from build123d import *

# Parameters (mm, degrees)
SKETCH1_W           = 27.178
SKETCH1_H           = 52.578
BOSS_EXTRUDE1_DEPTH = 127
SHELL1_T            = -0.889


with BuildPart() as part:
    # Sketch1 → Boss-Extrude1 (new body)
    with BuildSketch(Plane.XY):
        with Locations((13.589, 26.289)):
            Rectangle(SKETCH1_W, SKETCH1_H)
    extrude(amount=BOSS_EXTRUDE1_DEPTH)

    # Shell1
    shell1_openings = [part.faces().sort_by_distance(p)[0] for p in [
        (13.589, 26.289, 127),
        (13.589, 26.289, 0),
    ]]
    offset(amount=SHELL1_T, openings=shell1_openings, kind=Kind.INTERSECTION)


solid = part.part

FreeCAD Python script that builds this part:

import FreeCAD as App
import Part
import Sketcher
Q = App.Units.Quantity


def faces_at(feature, points):
    """Names of the faces that lie closest to the given points."""
    faces = feature.Shape.Faces
    near = lambda p: min(range(len(faces)), key=lambda i: faces[i].distToShape(Part.Vertex(*p))[0])
    return sorted({f"Face{near(p) + 1}" for p in points})

doc = App.newDocument("Part")
body = doc.addObject("PartDesign::Body", "Body")

# Sketch on XY plane
sketch1 = doc.addObject("Sketcher::SketchObject", "Sketch")
body.addObject(sketch1)
sketch1.AttachmentSupport = (doc.XY_Plane, [""])
sketch1.MapMode = "FlatFace"
sketch1.addGeometry([
    Part.LineSegment(App.Vector(0, 52.578, 0), App.Vector(0, 0, 0)),
    Part.LineSegment(App.Vector(0, 0, 0), App.Vector(27.178, 0, 0)),
    Part.LineSegment(App.Vector(27.178, 0, 0), App.Vector(27.178, 52.578, 0)),
    Part.LineSegment(App.Vector(27.178, 52.578, 0), App.Vector(0, 52.578, 0)),
], False)
sketch1.addConstraint([
    Sketcher.Constraint("Coincident", 0, 2, 1, 1),
    Sketcher.Constraint("Coincident", 1, 2, 2, 1),
    Sketcher.Constraint("Coincident", 2, 2, 3, 1),
    Sketcher.Constraint("Coincident", 3, 2, 0, 1),
    Sketcher.Constraint("Vertical", 0),
    Sketcher.Constraint("Horizontal", 1),
    Sketcher.Constraint("Vertical", 2),
    Sketcher.Constraint("Horizontal", 3),
    Sketcher.Constraint("Coincident", 0, 2, -1, 1),
    Sketcher.Constraint("DistanceX", 1, 1, 1, 2, Q("1.07 in")),
    Sketcher.Constraint("DistanceY", 0, 2, 0, 1, Q("2.07 in")),
])
pad1 = doc.addObject("PartDesign::Pad", "Pad")
body.addObject(pad1)
pad1.Profile = sketch1
pad1.Length = Q("5 in")
doc.recompute()

thickness = doc.addObject("PartDesign::Thickness", "Thickness")
body.addObject(thickness)
thickness.Base = (pad1, faces_at(pad1, [(13.589, 26.289, 127), (13.589, 26.289, 0)]))
thickness.Value = Q("0.035 in")
thickness.Reversed = True
thickness.Join = "Intersection"

doc.recompute()
